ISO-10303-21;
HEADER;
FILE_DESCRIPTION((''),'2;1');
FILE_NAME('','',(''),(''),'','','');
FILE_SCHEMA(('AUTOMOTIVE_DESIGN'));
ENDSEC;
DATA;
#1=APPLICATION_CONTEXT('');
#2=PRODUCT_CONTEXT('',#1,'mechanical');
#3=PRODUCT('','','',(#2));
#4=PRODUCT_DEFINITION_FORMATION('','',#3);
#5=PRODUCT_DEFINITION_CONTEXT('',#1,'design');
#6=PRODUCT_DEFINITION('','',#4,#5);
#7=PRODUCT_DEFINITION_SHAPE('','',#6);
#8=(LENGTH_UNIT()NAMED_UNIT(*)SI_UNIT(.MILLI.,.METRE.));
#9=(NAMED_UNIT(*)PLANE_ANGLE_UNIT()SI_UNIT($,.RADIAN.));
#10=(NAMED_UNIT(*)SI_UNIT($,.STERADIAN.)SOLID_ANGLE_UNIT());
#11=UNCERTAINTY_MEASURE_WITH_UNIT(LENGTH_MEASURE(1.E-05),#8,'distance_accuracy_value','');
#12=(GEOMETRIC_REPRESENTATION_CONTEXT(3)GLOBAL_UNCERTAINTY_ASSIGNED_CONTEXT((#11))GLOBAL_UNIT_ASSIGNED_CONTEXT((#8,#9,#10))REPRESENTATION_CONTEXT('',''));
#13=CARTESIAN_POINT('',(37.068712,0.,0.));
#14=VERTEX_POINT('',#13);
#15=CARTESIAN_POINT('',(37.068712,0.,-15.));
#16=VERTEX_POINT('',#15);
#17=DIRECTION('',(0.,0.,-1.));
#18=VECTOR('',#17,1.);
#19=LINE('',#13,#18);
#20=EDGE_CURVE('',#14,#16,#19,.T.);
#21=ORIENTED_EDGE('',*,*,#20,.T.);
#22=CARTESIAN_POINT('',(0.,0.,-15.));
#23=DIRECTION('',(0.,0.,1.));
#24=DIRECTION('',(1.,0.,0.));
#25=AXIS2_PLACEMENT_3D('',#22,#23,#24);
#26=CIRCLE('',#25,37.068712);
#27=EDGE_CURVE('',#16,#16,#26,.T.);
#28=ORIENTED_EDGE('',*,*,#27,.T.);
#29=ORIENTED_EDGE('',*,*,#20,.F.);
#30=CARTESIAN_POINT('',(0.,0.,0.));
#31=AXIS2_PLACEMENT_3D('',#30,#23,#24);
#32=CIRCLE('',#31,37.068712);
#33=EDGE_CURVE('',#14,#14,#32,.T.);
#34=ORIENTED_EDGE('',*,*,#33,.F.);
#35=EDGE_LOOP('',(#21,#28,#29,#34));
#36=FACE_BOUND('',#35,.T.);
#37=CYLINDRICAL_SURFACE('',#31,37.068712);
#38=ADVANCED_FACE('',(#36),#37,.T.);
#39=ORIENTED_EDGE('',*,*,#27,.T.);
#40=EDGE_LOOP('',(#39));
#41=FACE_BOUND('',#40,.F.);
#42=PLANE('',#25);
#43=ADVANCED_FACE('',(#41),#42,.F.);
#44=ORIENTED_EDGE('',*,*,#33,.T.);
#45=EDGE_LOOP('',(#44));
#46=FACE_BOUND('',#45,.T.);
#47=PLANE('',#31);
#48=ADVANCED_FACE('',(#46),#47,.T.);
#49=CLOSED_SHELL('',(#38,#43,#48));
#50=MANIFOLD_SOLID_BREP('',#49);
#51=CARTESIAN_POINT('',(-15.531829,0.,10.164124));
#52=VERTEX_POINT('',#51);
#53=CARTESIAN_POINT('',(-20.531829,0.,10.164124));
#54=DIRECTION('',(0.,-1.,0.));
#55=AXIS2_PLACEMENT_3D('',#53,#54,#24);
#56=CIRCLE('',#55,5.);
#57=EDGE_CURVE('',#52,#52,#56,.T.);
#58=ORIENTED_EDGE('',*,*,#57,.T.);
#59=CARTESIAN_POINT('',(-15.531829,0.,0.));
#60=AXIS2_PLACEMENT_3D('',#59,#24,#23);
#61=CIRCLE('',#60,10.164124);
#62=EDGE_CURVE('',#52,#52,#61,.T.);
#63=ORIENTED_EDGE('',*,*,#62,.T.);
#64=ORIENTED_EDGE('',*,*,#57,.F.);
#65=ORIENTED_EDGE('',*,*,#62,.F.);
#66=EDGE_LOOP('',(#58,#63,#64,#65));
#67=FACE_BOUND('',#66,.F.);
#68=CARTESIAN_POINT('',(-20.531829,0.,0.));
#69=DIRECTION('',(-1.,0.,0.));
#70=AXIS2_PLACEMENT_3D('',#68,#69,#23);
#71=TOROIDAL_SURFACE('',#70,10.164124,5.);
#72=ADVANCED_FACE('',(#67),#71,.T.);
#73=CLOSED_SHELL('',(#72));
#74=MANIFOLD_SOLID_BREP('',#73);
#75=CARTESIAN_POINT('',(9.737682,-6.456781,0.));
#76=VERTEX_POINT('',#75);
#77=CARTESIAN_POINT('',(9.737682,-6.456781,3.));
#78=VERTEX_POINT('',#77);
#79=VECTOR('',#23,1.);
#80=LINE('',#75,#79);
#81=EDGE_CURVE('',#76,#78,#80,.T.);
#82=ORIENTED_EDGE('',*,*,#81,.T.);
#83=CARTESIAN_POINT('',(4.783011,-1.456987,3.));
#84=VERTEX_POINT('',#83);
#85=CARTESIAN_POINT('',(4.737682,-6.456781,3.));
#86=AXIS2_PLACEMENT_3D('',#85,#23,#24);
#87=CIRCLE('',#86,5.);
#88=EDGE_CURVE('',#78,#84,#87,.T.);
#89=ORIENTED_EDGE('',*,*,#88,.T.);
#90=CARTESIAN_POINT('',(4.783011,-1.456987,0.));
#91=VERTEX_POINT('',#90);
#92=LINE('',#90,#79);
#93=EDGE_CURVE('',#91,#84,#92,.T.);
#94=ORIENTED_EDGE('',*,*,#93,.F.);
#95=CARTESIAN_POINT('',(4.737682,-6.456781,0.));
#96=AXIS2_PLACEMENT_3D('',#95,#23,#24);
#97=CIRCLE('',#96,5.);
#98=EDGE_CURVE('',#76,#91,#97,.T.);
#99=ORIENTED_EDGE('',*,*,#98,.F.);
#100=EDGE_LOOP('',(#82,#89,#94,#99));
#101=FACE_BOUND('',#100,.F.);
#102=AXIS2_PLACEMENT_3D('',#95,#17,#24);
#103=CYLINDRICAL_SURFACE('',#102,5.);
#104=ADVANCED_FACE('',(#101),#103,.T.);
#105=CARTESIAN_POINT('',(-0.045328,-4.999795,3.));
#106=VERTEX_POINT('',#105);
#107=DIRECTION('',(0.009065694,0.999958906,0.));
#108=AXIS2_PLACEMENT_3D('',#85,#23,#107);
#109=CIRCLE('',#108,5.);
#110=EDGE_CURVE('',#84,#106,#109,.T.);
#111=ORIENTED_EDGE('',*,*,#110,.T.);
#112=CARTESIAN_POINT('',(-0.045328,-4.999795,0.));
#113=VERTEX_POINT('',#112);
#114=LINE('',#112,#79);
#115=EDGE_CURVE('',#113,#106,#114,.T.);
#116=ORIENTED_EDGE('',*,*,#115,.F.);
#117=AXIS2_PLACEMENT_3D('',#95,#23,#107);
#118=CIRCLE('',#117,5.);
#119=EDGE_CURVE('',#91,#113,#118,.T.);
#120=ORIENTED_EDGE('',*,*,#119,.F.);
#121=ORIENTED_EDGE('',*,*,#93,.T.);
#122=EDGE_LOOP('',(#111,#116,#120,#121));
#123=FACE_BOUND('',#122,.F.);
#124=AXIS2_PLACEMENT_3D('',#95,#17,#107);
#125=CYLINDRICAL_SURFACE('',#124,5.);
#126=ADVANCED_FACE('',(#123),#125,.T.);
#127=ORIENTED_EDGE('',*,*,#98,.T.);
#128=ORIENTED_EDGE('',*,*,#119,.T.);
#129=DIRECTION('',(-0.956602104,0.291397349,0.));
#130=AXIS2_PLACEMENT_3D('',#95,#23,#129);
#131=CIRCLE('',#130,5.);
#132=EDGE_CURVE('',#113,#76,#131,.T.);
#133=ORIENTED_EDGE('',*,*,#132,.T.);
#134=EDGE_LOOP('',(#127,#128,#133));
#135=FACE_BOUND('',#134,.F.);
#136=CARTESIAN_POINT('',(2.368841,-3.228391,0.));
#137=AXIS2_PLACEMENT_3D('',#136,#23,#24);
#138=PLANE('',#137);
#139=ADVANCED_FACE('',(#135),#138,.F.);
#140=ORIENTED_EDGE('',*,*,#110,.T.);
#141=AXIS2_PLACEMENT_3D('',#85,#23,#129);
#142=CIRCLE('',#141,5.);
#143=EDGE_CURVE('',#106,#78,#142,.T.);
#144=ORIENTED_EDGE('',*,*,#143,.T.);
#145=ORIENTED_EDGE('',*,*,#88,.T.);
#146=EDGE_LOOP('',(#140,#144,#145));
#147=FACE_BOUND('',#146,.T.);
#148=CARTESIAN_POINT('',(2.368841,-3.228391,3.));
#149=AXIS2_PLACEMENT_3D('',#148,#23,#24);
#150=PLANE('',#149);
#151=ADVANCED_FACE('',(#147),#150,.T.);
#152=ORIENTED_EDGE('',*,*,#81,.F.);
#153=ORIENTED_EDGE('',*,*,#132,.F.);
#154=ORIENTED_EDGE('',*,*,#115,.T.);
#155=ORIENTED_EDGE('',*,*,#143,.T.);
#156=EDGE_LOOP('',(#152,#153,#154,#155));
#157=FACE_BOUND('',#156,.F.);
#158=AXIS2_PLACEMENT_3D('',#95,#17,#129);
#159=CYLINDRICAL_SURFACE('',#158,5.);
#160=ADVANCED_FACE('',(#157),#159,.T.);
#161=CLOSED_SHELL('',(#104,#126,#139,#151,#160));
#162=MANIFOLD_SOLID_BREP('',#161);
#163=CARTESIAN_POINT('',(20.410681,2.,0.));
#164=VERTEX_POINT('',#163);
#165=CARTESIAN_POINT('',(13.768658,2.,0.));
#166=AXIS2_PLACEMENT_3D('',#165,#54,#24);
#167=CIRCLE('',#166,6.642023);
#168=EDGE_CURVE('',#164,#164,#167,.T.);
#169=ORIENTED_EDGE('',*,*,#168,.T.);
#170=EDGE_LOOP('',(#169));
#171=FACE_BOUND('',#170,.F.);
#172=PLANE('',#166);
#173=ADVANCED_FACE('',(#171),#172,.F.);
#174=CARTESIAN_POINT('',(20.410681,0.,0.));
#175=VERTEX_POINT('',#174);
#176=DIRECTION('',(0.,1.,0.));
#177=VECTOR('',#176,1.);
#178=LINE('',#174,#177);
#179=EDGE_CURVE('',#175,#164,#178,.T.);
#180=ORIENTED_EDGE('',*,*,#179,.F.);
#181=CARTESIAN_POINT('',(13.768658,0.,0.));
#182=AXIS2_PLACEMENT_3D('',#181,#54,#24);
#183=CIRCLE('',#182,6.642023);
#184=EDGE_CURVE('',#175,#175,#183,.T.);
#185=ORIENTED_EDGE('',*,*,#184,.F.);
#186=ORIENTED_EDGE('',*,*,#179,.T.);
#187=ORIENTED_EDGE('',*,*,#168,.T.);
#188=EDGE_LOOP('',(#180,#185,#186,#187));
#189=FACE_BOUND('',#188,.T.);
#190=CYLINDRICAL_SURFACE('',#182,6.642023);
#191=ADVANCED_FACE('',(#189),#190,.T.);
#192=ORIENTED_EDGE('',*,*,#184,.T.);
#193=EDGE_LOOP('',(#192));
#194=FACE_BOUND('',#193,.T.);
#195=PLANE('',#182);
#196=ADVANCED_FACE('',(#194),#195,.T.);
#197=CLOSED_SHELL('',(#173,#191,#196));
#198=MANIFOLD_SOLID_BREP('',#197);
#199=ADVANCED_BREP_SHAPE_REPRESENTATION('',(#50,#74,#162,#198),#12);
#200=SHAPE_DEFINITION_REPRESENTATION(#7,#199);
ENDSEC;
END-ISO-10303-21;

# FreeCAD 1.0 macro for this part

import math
import FreeCAD as App
import Part
import Sketcher

V = App.Vector
Q = App.Units.Quantity

doc = App.newDocument("Part")
body = doc.addObject("PartDesign::Body", "Body")

# Sketch on XZ plane
sketch1 = doc.addObject("Sketcher::SketchObject", "Sketch")
body.addObject(sketch1)
sketch1.AttachmentSupport = (doc.XZ_Plane, [""])
sketch1.MapMode = "FlatFace"
sketch1.addGeometry(Part.Circle(V(-20.531829, 10.164124, 0), V(0, 0, 1), 5), False)
sketch1.addConstraint([
    Sketcher.Constraint("Diameter", 0, Q("10 mm")),
    Sketcher.Constraint("DistanceX", 0, 3, -1, 1, Q("20.531829 mm")),
    Sketcher.Constraint("DistanceY", -1, 1, 0, 3, Q("10.164124 mm")),
])
revolution = doc.addObject("PartDesign::Revolution", "Revolution")
body.addObject(revolution)
revolution.Profile = sketch1
revolution.ReferenceAxis = (sketch1, ["H_Axis"])
revolution.Angle = 360
body2 = doc.addObject("PartDesign::Body", "Body001")

# Sketch on XY plane
sketch2 = doc.addObject("Sketcher::SketchObject", "Sketch001")
body2.addObject(sketch2)
sketch2.AttachmentSupport = (doc.getObject("XY_Plane001"), [""])
sketch2.MapMode = "FlatFace"
sketch2.addGeometry([
    Part.ArcOfCircle(Part.Circle(V(4.737682, -6.456781, 0), V(0, 0, 1), 5), math.radians(89.480567), math.radians(163.058368)),
    Part.ArcOfCircle(Part.Circle(V(4.737682, -6.456781, 0), V(0, 0, 1), 5), math.radians(163.058368), math.radians(360)),
    Part.ArcOfCircle(Part.Circle(V(4.737682, -6.456781, 0), V(0, 0, 1), 5), math.radians(0), math.radians(89.480567)),
], False)
sketch2.addConstraint([
    Sketcher.Constraint("Tangent", 0, 2, 1, 1),
    Sketcher.Constraint("Tangent", 1, 2, 2, 1),
    Sketcher.Constraint("Tangent", 2, 2, 0, 1),
    Sketcher.Constraint("Horizontal", 2, 3, 1, 2),
    Sketcher.Constraint("Radius", 0, Q("5 mm")),
    Sketcher.Constraint("DistanceY", 0, 3, -1, 1, Q("6.456781 mm")),
    Sketcher.Constraint("DistanceX", 0, 2, -1, 1, Q("0.045328 mm")),
    Sketcher.Constraint("DistanceX", -1, 1, 2, 2, Q("4.783011 mm")),
    Sketcher.Constraint("DistanceX", 0, 2, 0, 3, Q("4.783011 mm")),
])
pad1 = doc.addObject("PartDesign::Pad", "Pad")
body2.addObject(pad1)
pad1.Profile = sketch2
pad1.Length = 3
body3 = doc.addObject("PartDesign::Body", "Body002")

# Sketch on XZ plane
sketch3 = doc.addObject("Sketcher::SketchObject", "Sketch002")
body3.addObject(sketch3)
sketch3.AttachmentSupport = (doc.getObject("XZ_Plane002"), [""])
sketch3.MapMode = "FlatFace"
sketch3.addGeometry(Part.Circle(V(13.768658, 0, 0), V(0, 0, 1), 6.642023), False)
sketch3.addConstraint([
    Sketcher.Constraint("PointOnObject", 0, 3, -1),
    Sketcher.Constraint("Diameter", 0, Q("13.284046 mm")),
    Sketcher.Constraint("DistanceX", -1, 1, 0, 3, Q("13.768658 mm")),
])
pad2 = doc.addObject("PartDesign::Pad", "Pad001")
body3.addObject(pad2)
pad2.Profile = sketch3
pad2.Length = 2
pad2.Reversed = True
body4 = doc.addObject("PartDesign::Body", "Body003")

# Sketch on XY plane
sketch4 = doc.addObject("Sketcher::SketchObject", "Sketch003")
body4.addObject(sketch4)
sketch4.AttachmentSupport = (doc.getObject("XY_Plane003"), [""])
sketch4.MapMode = "FlatFace"
sketch4.addGeometry(Part.Circle(V(0, 0, 0), V(0, 0, 1), 37.068712), False)
sketch4.addConstraint([
    Sketcher.Constraint("Coincident", 0, 3, -1, 1),
    Sketcher.Constraint("Diameter", 0, Q("74.137424 mm")),
])
pad3 = doc.addObject("PartDesign::Pad", "Pad002")
body4.addObject(pad3)
pad3.Profile = sketch4
pad3.Length = 15
pad3.Reversed = True

doc.recompute()
